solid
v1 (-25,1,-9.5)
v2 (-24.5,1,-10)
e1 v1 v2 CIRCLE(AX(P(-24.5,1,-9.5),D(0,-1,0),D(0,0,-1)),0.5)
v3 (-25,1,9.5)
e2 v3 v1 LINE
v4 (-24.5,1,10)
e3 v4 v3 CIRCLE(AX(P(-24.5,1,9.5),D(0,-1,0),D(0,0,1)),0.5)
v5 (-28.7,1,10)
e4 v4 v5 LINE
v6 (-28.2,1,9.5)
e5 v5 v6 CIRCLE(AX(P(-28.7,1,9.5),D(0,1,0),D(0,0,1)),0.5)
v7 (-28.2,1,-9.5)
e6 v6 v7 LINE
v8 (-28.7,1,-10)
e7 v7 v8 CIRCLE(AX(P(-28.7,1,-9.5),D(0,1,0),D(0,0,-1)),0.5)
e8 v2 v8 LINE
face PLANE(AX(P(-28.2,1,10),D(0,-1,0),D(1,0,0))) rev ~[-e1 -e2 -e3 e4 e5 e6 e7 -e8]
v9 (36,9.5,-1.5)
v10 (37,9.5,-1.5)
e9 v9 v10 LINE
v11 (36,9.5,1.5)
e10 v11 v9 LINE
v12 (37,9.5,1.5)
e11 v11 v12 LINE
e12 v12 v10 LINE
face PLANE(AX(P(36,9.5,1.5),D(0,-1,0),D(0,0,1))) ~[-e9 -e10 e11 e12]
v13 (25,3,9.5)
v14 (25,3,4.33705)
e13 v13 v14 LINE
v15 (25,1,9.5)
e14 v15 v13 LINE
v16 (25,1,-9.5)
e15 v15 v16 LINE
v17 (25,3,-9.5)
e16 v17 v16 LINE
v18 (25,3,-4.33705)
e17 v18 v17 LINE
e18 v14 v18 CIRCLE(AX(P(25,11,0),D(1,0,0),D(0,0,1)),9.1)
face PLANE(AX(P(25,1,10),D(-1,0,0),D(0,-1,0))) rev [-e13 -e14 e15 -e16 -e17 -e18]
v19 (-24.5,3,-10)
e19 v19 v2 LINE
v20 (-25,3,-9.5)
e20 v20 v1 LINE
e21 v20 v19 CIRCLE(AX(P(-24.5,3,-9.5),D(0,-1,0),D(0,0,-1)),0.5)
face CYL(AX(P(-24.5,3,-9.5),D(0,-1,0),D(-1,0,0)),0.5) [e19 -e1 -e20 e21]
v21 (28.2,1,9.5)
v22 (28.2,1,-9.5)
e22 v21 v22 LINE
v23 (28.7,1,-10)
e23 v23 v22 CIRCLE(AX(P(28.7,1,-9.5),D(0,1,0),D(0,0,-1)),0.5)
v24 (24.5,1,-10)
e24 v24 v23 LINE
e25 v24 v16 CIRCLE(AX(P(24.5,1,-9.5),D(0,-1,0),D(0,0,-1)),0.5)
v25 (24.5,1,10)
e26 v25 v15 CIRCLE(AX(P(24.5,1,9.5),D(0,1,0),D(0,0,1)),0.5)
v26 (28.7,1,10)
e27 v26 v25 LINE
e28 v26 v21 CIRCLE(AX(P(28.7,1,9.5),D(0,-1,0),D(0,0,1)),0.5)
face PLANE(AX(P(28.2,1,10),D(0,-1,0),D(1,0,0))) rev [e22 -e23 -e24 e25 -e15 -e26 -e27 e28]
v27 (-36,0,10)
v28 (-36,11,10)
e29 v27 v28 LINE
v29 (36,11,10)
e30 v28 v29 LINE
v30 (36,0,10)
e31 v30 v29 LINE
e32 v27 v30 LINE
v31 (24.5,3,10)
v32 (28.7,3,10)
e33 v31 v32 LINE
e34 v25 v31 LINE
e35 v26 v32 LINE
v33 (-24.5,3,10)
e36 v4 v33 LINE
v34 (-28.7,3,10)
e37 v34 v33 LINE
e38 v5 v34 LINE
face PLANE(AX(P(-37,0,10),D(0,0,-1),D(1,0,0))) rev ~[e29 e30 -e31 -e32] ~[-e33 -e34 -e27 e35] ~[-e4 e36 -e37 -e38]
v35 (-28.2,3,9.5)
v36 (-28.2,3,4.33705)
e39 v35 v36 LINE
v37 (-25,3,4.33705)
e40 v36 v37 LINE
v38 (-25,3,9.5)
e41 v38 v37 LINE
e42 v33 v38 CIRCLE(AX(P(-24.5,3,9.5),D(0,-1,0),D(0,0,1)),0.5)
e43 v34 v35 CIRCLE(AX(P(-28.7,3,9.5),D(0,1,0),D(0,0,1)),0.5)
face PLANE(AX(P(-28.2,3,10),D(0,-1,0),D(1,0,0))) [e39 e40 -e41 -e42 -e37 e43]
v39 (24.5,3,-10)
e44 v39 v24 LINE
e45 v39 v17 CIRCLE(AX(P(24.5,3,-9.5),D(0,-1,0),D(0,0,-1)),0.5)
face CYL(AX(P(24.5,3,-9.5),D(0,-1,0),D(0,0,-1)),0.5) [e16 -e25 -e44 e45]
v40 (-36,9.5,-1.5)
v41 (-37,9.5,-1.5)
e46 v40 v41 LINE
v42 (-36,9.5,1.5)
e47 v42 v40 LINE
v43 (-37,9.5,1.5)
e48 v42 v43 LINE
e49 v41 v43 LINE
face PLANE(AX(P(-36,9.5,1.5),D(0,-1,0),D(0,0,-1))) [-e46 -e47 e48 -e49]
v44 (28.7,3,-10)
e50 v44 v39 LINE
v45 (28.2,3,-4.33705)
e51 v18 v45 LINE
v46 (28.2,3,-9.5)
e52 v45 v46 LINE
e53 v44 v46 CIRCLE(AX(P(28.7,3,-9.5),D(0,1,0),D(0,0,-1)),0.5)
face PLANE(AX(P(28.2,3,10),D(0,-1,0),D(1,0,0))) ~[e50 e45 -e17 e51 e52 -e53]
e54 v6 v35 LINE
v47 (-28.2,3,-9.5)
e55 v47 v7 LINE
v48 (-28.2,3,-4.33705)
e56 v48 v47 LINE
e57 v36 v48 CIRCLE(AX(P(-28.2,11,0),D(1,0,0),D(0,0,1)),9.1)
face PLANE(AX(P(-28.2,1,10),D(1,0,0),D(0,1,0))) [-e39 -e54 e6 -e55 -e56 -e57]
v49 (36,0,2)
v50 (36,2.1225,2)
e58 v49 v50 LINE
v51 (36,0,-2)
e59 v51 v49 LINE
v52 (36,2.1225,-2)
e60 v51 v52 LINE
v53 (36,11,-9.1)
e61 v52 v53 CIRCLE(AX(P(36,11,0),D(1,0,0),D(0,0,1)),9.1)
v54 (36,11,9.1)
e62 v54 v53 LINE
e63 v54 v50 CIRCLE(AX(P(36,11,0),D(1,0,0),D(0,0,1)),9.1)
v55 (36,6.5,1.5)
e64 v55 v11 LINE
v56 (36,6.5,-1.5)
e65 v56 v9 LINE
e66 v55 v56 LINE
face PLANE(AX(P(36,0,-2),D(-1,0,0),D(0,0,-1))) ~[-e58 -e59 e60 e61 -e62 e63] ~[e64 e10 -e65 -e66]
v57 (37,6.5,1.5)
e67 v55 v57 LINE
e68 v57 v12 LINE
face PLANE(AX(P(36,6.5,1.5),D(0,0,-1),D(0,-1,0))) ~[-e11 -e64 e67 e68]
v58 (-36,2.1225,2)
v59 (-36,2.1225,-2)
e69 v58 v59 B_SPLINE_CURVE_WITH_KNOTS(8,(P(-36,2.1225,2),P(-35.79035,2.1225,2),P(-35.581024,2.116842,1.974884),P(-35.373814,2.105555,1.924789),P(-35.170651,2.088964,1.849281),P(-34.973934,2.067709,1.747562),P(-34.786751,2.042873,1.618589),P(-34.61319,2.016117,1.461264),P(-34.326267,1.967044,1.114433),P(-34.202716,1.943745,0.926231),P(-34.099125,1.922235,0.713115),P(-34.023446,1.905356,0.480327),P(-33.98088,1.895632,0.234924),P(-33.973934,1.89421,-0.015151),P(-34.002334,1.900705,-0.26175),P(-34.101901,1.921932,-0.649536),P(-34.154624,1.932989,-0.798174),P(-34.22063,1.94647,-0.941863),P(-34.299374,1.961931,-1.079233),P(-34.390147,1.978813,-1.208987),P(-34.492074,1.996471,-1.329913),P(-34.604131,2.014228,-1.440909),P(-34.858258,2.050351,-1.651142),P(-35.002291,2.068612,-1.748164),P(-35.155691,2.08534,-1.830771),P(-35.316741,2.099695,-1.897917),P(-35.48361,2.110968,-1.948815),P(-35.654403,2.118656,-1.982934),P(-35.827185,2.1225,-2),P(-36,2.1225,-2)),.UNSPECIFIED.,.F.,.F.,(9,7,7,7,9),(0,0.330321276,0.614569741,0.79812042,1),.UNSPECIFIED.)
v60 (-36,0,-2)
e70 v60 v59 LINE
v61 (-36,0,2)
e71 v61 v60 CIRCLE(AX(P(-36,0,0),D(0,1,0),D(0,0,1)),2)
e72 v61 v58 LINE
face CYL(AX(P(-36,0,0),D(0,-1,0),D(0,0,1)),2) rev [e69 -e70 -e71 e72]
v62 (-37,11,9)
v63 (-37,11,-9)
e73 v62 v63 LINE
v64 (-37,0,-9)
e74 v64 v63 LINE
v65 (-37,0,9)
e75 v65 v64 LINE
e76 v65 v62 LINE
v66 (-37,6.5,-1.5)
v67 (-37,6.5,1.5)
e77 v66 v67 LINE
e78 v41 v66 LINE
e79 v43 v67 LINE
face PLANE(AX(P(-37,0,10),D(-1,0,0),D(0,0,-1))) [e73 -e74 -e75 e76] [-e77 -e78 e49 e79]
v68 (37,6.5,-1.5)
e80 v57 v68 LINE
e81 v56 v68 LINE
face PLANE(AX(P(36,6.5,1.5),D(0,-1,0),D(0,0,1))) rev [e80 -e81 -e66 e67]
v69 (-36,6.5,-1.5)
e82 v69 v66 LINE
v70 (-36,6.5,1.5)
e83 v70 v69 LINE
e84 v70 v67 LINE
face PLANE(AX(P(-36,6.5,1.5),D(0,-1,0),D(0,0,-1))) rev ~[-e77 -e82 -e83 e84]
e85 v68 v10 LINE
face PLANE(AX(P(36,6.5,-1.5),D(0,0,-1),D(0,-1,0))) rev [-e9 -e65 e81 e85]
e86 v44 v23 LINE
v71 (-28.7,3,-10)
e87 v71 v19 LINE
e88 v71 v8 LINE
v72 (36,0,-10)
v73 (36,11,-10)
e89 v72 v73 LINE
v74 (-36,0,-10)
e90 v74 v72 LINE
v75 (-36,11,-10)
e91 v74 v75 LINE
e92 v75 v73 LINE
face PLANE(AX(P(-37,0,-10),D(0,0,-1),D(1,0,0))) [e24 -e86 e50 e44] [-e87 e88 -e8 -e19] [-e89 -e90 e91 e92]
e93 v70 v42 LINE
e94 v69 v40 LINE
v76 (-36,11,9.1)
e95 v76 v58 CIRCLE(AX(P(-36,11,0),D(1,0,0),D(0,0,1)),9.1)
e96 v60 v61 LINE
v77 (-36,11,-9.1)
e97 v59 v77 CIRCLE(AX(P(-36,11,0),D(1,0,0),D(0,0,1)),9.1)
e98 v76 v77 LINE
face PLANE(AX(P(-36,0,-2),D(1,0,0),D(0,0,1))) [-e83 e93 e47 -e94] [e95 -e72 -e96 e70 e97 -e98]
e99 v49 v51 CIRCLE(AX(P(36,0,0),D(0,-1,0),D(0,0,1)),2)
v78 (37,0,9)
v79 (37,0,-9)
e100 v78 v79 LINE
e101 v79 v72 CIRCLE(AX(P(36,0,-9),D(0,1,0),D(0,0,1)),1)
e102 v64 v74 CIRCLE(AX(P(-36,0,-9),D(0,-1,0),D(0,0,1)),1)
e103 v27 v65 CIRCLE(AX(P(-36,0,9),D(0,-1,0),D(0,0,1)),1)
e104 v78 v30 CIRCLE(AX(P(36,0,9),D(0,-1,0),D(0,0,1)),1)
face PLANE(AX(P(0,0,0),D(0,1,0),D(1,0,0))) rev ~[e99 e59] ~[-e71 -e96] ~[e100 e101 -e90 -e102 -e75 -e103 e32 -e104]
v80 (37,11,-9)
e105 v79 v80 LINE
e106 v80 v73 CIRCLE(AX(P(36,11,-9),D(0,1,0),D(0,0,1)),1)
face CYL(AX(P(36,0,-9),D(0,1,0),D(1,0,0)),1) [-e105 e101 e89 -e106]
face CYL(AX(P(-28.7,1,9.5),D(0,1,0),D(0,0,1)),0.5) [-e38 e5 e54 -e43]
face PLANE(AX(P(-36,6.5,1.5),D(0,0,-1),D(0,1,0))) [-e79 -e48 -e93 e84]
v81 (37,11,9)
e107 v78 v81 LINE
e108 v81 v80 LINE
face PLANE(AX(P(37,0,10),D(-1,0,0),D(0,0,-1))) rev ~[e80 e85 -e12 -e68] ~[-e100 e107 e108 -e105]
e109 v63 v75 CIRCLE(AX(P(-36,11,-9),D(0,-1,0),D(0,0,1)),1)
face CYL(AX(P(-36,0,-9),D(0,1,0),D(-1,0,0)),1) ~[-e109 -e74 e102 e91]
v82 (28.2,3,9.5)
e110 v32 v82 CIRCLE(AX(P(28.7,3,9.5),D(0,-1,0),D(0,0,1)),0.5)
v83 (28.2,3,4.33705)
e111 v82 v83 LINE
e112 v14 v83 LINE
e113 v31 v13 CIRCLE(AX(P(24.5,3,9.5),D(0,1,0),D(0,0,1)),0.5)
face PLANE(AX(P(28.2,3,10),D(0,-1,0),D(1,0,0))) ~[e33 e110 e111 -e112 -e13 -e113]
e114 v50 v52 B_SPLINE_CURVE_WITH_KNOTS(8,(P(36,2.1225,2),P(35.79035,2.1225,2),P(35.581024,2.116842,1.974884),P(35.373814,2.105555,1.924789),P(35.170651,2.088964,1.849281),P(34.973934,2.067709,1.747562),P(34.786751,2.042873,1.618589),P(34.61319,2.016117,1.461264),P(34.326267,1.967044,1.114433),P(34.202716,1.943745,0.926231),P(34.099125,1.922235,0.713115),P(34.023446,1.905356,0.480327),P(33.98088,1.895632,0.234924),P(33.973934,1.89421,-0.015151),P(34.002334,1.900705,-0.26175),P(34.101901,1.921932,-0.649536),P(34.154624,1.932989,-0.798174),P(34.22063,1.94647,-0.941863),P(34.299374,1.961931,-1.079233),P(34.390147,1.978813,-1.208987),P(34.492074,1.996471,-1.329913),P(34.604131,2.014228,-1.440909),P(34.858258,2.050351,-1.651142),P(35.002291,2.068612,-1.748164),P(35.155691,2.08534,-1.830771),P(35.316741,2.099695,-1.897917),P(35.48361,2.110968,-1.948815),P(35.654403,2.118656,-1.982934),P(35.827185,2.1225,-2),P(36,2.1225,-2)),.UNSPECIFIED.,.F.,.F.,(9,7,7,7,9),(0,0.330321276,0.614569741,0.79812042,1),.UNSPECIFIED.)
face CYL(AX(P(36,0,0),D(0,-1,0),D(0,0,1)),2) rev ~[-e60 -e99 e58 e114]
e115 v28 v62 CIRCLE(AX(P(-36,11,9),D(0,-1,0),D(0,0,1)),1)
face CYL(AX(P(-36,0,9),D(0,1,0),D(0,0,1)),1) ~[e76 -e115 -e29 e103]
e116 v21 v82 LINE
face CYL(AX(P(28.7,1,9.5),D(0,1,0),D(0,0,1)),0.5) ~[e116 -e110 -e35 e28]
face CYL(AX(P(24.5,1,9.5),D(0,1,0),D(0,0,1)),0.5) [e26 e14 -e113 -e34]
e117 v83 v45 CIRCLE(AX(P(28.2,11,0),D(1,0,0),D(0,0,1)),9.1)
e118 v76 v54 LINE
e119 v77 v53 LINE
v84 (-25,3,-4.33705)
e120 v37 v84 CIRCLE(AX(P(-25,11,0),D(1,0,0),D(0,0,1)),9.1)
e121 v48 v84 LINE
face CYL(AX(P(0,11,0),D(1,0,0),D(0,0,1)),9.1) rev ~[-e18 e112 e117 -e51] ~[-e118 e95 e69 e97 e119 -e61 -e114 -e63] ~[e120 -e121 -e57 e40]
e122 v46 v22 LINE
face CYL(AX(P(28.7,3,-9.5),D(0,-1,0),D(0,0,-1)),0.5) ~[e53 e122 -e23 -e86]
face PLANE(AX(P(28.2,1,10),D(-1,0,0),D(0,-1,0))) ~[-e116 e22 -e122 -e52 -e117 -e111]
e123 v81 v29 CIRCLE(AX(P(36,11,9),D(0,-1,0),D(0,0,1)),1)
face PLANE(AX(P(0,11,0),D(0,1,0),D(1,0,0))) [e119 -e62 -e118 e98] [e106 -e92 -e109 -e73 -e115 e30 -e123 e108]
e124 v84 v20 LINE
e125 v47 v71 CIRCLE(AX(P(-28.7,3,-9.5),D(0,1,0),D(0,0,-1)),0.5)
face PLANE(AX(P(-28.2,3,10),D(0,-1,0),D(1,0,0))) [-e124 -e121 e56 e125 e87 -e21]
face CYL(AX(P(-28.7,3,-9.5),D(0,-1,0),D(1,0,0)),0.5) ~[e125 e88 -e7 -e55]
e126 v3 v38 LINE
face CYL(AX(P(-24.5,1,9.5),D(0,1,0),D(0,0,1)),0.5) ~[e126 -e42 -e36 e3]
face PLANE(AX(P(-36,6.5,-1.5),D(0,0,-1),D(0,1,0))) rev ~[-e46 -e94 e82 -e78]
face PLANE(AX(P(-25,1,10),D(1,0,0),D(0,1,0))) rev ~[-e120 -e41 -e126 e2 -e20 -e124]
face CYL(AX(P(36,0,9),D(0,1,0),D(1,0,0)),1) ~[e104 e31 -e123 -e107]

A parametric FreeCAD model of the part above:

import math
import FreeCAD as App
import Part
import Sketcher
Q = App.Units.Quantity


def edges_at(feature, points):
    """Names of the edges that pass closest to the given points."""
    edges = feature.Shape.Edges
    near = lambda p: min(range(len(edges)), key=lambda i: edges[i].distToShape(Part.Vertex(*p))[0])
    return sorted({f"Edge{near(p) + 1}" for p in points})

doc = App.newDocument("Part")
body = doc.addObject("PartDesign::Body", "Body")

# Sketch on XZ plane
sketch1 = body.newObject("Sketcher::SketchObject", "Sketch")
sketch1.AttachmentSupport = (doc.getObject("XZ_Plane"), [""])
sketch1.MapMode = "FlatFace"
sketch1.addGeometry(Part.LineSegment(App.Vector(-37, -10, 0), App.Vector(-37, 10, 0)), False)
sketch1.addGeometry(Part.LineSegment(App.Vector(-37, 10, 0), App.Vector(37, 10, 0)), False)
sketch1.addGeometry(Part.LineSegment(App.Vector(37, 10, 0), App.Vector(37, -10, 0)), False)
sketch1.addGeometry(Part.LineSegment(App.Vector(37, -10, 0), App.Vector(-37, -10, 0)), False)
sketch1.addConstraint(Sketcher.Constraint("Coincident", 0, 2, 1, 1))
sketch1.addConstraint(Sketcher.Constraint("Coincident", 1, 2, 2, 1))
sketch1.addConstraint(Sketcher.Constraint("Coincident", 2, 2, 3, 1))
sketch1.addConstraint(Sketcher.Constraint("Coincident", 3, 2, 0, 1))
sketch1.addConstraint(Sketcher.Constraint("Vertical", 0))
sketch1.addConstraint(Sketcher.Constraint("Horizontal", 1))
sketch1.addConstraint(Sketcher.Constraint("Vertical", 2))
sketch1.addConstraint(Sketcher.Constraint("Horizontal", 3))
sketch1.addConstraint(Sketcher.Constraint("Symmetric", 0, 2, 2, 2, -1, 1))
sketch1.addConstraint(Sketcher.Constraint("DistanceX", 1, 1, 1, 2, Q("74 mm")))
sketch1.addConstraint(Sketcher.Constraint("DistanceY", 0, 1, 0, 2, Q("20 mm")))
pad1 = body.newObject("PartDesign::Pad", "Pad")
pad1.Profile = sketch1
pad1.Length = 11
pad1.Reversed = True

# Sketch on XZ plane
sketch2 = body.newObject("Sketcher::SketchObject", "Sketch001")
sketch2.AttachmentSupport = (doc.getObject("XZ_Plane"), [""])
sketch2.MapMode = "FlatFace"
sketch2.AttachmentOffset = App.Placement(App.Vector(0, 0, -11), App.Rotation())
sketch2.addGeometry(Part.LineSegment(App.Vector(-36, 0, 0), App.Vector(-36, 9, 0)), False)
sketch2.addGeometry(Part.LineSegment(App.Vector(-36, 9, 0), App.Vector(36, 9, 0)), False)
sketch2.addGeometry(Part.LineSegment(App.Vector(36, 9, 0), App.Vector(36, 0, 0)), False)
sketch2.addGeometry(Part.LineSegment(App.Vector(36, 0, 0), App.Vector(-36, 0, 0)), False)
sketch2.addConstraint(Sketcher.Constraint("Coincident", 0, 2, 1, 1))
sketch2.addConstraint(Sketcher.Constraint("Coincident", 1, 2, 2, 1))
sketch2.addConstraint(Sketcher.Constraint("Coincident", 2, 2, 3, 1))
sketch2.addConstraint(Sketcher.Constraint("Coincident", 3, 2, 0, 1))
sketch2.addConstraint(Sketcher.Constraint("Vertical", 0))
sketch2.addConstraint(Sketcher.Constraint("Horizontal", 1))
sketch2.addConstraint(Sketcher.Constraint("Vertical", 2))
sketch2.addConstraint(Sketcher.Constraint("Horizontal", 3))
sketch2.addConstraint(Sketcher.Constraint("Symmetric", 2, 2, 3, 2, -1, 1))
sketch2.addConstraint(Sketcher.Constraint("DistanceX", 1, 1, 1, 2, Q("72 mm")))
sketch2.addConstraint(Sketcher.Constraint("DistanceY", 0, 1, 0, 2, Q("9.1 mm")))
groove = body.newObject("PartDesign::Groove", "Groove")
groove.Profile = sketch2
groove.ReferenceAxis = (sketch2, ["H_Axis"])
groove.Angle = 360

# Sketch on YZ plane
sketch3 = body.newObject("Sketcher::SketchObject", "Sketch002")
sketch3.AttachmentSupport = (doc.getObject("YZ_Plane"), [""])
sketch3.MapMode = "FlatFace"
sketch3.AttachmentOffset = App.Placement(App.Vector(0, 0, -36), App.Rotation())
sketch3.addGeometry(Part.LineSegment(App.Vector(9.5, 1.5, 0), App.Vector(6.5, 1.5, 0)), False)
sketch3.addGeometry(Part.LineSegment(App.Vector(6.5, 1.5, 0), App.Vector(6.5, -1.5, 0)), False)
sketch3.addGeometry(Part.LineSegment(App.Vector(6.5, -1.5, 0), App.Vector(9.5, -1.5, 0)), False)
sketch3.addGeometry(Part.LineSegment(App.Vector(9.5, -1.5, 0), App.Vector(9.5, 1.5, 0)), False)
sketch3.addConstraint(Sketcher.Constraint("Coincident", 0, 2, 1, 1))
sketch3.addConstraint(Sketcher.Constraint("Coincident", 1, 2, 2, 1))
sketch3.addConstraint(Sketcher.Constraint("Coincident", 2, 2, 3, 1))
sketch3.addConstraint(Sketcher.Constraint("Coincident", 3, 2, 0, 1))
sketch3.addConstraint(Sketcher.Constraint("Horizontal", 0))
sketch3.addConstraint(Sketcher.Constraint("Vertical", 1))
sketch3.addConstraint(Sketcher.Constraint("Horizontal", 2))
sketch3.addConstraint(Sketcher.Constraint("Vertical", 3))
sketch3.addConstraint(Sketcher.Constraint("Equal", 2, 1))
sketch3.addConstraint(Sketcher.Constraint("DistanceX", 0, 2, 0, 1, Q("3 mm")))
sketch3.addConstraint(Sketcher.Constraint("DistanceX", -1, 1, 0, 2, Q("6.5 mm")))
sketch3.addConstraint(Sketcher.Constraint("DistanceY", -1, 1, 0, 2, Q("1.5 mm")))
pocket1 = body.newObject("PartDesign::Pocket", "Pocket")
pocket1.Profile = sketch3
pocket1.Length = 2.5
doc.recompute()

mirrored = body.newObject("PartDesign::Mirrored", "Mirrored")
mirrored.Originals = [pocket1]
mirrored.MirrorPlane = (doc.getObject("YZ_Plane"), [""])
body.Tip = mirrored

# Sketch on XZ plane
sketch4 = body.newObject("Sketcher::SketchObject", "Sketch003")
sketch4.AttachmentSupport = (doc.getObject("XZ_Plane"), [""])
sketch4.MapMode = "FlatFace"
sketch4.addGeometry(Part.LineSegment(App.Vector(-36, -2, 0), App.Vector(-36, 2, 0)), False)
sketch4.addGeometry(Part.ArcOfCircle(Part.Circle(App.Vector(-36, 0, 0), App.Vector(0, 0, 1), 2), math.radians(-90), math.radians(90)), False)
sketch4.addConstraint(Sketcher.Constraint("Coincident", 0, 1, 1, 1))
sketch4.addConstraint(Sketcher.Constraint("Coincident", 1, 2, 0, 2))
sketch4.addConstraint(Sketcher.Constraint("Vertical", 0))
sketch4.addConstraint(Sketcher.Constraint("PointOnObject", 1, 3, -1))
sketch4.addConstraint(Sketcher.Constraint("Vertical", 1, 3, 0, 1))
sketch4.addConstraint(Sketcher.Constraint("Radius", 1, Q("2 mm")))
sketch4.addConstraint(Sketcher.Constraint("DistanceX", 1, 3, -1, 1, Q("36 mm")))
pocket2 = body.newObject("PartDesign::Pocket", "Pocket001")
pocket2.Profile = sketch4
pocket2.Type = "ThroughAll"
doc.recompute()

fillet = body.newObject("PartDesign::Fillet", "Fillet")
fillet.Base = (pocket2, edges_at(pocket2, [(37, 5.5, 10)]))
fillet.Radius = 1
doc.recompute()

fillet2 = body.newObject("PartDesign::Fillet", "Fillet001")
fillet2.Base = (fillet, edges_at(fillet, [(37, 5.5, -10)]))
fillet2.Radius = 1
doc.recompute()

fillet3 = body.newObject("PartDesign::Fillet", "Fillet002")
fillet3.Base = (fillet2, edges_at(fillet2, [(-37, 5.5, 10)]))
fillet3.Radius = 1
doc.recompute()

fillet4 = body.newObject("PartDesign::Fillet", "Fillet003")
fillet4.Base = (fillet3, edges_at(fillet3, [(-37, 5.5, -10)]))
fillet4.Radius = 1
doc.recompute()

mirrored2 = body.newObject("PartDesign::Mirrored", "Mirrored001")
mirrored2.Originals = [pocket2]
mirrored2.MirrorPlane = (doc.getObject("YZ_Plane"), [""])
body.Tip = mirrored2

# Sketch on XY plane
sketch5 = body.newObject("Sketcher::SketchObject", "Sketch004")
sketch5.AttachmentSupport = (doc.getObject("XY_Plane"), [""])
sketch5.MapMode = "FlatFace"
sketch5.AttachmentOffset = App.Placement(App.Vector(0, 0, 10), App.Rotation())
sketch5.addGeometry(Part.LineSegment(App.Vector(-28.2, 3, 0), App.Vector(-28.2, 1, 0)), False)
sketch5.addGeometry(Part.LineSegment(App.Vector(-28.2, 1, 0), App.Vector(-25, 1, 0)), False)
sketch5.addGeometry(Part.LineSegment(App.Vector(-25, 1, 0), App.Vector(-25, 3, 0)), False)
sketch5.addGeometry(Part.LineSegment(App.Vector(-25, 3, 0), App.Vector(-28.2, 3, 0)), False)
sketch5.addConstraint(Sketcher.Constraint("Coincident", 0, 2, 1, 1))
sketch5.addConstraint(Sketcher.Constraint("Coincident", 1, 2, 2, 1))
sketch5.addConstraint(Sketcher.Constraint("Coincident", 2, 2, 3, 1))
sketch5.addConstraint(Sketcher.Constraint("Coincident", 3, 2, 0, 1))
sketch5.addConstraint(Sketcher.Constraint("Vertical", 0))
sketch5.addConstraint(Sketcher.Constraint("Horizontal", 1))
sketch5.addConstraint(Sketcher.Constraint("Vertical", 2))
sketch5.addConstraint(Sketcher.Constraint("Horizontal", 3))
sketch5.addConstraint(Sketcher.Constraint("DistanceY", 0, 2, 0, 1, Q("2 mm")))
sketch5.addConstraint(Sketcher.Constraint("DistanceX", 1, 1, 1, 2, Q("3.2 mm")))
sketch5.addConstraint(Sketcher.Constraint("DistanceY", -1, 1, 0, 2, Q("1 mm")))
sketch5.addConstraint(Sketcher.Constraint("DistanceX", 1, 2, -1, 1, Q("25 mm")))
pocket3 = body.newObject("PartDesign::Pocket", "Pocket002")
pocket3.Profile = sketch5
pocket3.Type = "ThroughAll"
doc.recompute()

fillet5 = body.newObject("PartDesign::Fillet", "Fillet004")
fillet5.Base = (pocket3, edges_at(pocket3, [(-28.2, 2, 10)]))
fillet5.Radius = 0.5
doc.recompute()

fillet6 = body.newObject("PartDesign::Fillet", "Fillet005")
fillet6.Base = (fillet5, edges_at(fillet5, [(-25, 2, 10)]))
fillet6.Radius = 0.5
doc.recompute()

fillet7 = body.newObject("PartDesign::Fillet", "Fillet006")
fillet7.Base = (fillet6, edges_at(fillet6, [(-25, 2, -10)]))
fillet7.Radius = 0.5
doc.recompute()

fillet8 = body.newObject("PartDesign::Fillet", "Fillet007")
fillet8.Base = (fillet7, edges_at(fillet7, [(-28.2, 2, -10)]))
fillet8.Radius = 0.5
doc.recompute()

mirrored3 = body.newObject("PartDesign::Mirrored", "Mirrored002")
mirrored3.Originals = [pocket3]
mirrored3.MirrorPlane = (doc.getObject("YZ_Plane"), [""])
body.Tip = mirrored3
doc.recompute()

fillet9 = body.newObject("PartDesign::Fillet", "Fillet008")
fillet9.Base = (mirrored3, edges_at(mirrored3, [(28.2, 2, 10)]))
fillet9.Radius = 0.5
doc.recompute()

fillet10 = body.newObject("PartDesign::Fillet", "Fillet009")
fillet10.Base = (fillet9, edges_at(fillet9, [(25, 2, 10)]))
fillet10.Radius = 0.5
doc.recompute()

fillet11 = body.newObject("PartDesign::Fillet", "Fillet010")
fillet11.Base = (fillet10, edges_at(fillet10, [(25, 2, -10)]))
fillet11.Radius = 0.5
doc.recompute()

fillet12 = body.newObject("PartDesign::Fillet", "Fillet011")
fillet12.Base = (fillet11, edges_at(fillet11, [(28.2, 2, -10)]))
fillet12.Radius = 0.5

doc.recompute()
